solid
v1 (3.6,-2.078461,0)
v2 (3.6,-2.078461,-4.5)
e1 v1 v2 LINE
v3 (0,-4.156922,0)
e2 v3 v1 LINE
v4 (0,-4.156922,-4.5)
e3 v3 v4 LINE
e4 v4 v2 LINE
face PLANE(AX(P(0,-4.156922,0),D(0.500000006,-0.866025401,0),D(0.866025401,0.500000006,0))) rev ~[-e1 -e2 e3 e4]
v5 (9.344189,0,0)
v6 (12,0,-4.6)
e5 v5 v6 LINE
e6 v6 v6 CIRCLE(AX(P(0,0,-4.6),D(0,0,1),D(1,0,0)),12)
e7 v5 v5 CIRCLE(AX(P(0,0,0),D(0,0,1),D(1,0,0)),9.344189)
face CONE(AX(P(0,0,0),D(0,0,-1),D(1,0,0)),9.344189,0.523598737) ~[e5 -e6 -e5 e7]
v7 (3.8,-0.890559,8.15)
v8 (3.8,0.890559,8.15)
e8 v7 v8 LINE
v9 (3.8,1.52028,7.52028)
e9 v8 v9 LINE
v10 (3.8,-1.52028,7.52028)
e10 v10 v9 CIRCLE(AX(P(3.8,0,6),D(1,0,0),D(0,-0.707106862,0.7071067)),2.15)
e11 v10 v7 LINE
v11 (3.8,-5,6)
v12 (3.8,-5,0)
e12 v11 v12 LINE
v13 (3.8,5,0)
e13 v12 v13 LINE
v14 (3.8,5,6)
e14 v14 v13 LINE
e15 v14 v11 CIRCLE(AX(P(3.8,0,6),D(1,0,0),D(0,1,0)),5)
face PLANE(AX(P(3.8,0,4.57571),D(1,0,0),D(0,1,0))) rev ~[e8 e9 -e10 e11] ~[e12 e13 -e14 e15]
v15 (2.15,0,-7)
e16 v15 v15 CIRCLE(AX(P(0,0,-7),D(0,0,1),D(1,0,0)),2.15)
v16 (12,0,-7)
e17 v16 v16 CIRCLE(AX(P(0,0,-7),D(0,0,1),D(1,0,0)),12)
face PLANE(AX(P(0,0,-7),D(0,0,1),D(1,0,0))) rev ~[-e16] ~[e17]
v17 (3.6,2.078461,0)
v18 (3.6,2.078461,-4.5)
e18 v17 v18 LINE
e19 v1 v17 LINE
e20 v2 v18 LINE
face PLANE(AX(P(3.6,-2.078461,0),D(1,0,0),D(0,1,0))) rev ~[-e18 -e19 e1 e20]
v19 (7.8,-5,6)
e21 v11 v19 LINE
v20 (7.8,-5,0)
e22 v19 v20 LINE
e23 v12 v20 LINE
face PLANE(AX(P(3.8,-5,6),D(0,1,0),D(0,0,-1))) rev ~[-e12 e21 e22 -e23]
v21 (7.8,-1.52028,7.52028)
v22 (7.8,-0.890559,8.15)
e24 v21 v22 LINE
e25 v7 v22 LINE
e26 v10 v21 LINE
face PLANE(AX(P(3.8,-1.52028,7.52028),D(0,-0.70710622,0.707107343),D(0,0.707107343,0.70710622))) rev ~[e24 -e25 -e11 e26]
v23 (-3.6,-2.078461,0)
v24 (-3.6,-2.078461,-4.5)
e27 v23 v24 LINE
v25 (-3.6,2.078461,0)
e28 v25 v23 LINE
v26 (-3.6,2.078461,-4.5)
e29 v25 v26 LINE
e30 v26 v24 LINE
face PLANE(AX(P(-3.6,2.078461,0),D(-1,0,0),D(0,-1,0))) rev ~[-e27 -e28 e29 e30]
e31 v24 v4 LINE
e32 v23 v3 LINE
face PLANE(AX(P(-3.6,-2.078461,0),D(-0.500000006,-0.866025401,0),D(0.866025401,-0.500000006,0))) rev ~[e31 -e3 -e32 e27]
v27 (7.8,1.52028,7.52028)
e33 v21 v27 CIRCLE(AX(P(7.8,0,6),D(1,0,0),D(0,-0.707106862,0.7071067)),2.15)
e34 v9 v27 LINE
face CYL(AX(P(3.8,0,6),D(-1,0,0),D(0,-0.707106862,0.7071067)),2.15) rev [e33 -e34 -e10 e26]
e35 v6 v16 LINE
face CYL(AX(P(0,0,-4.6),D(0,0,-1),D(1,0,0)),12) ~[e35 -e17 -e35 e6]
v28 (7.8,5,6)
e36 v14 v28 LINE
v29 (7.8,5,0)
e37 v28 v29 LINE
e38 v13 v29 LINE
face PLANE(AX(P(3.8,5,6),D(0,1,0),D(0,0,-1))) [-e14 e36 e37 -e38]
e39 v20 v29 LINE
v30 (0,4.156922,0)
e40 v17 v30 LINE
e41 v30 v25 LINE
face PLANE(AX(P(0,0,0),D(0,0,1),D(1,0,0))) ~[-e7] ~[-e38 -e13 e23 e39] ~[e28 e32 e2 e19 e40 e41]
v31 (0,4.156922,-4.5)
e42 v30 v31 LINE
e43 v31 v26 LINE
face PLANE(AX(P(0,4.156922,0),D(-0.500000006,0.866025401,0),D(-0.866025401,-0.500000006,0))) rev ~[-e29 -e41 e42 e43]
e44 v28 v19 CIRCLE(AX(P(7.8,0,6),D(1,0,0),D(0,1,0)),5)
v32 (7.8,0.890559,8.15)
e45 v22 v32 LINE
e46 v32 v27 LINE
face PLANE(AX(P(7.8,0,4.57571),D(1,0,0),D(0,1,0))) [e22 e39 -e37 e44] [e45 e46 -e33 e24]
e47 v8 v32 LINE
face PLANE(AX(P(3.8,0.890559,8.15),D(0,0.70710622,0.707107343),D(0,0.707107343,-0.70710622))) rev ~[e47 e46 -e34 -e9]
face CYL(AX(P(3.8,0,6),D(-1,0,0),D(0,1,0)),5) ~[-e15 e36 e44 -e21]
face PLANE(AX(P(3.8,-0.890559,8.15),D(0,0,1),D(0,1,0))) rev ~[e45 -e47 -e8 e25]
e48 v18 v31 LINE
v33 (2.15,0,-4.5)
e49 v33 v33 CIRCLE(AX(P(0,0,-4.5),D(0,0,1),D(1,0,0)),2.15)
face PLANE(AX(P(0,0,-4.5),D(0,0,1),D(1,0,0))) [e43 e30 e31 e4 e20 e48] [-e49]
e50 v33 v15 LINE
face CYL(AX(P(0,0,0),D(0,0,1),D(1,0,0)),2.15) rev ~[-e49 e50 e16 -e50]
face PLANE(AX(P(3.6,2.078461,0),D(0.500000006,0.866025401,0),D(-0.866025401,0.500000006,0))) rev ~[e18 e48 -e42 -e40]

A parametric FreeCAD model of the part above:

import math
import FreeCAD as App
import Part
import Sketcher
Q = App.Units.Quantity

doc = App.newDocument("Part")
body = doc.addObject("PartDesign::Body", "Body")

# Sketch on XZ plane
sketch1 = doc.addObject("Sketcher::SketchObject", "Sketch")
body.addObject(sketch1)
sketch1.AttachmentSupport = (doc.XZ_Plane, [""])
sketch1.MapMode = "FlatFace"
sketch1.addGeometry(Part.LineSegment(App.Vector(9.344189, 0, 0), App.Vector(0, 0, 0)), False)
sketch1.addGeometry(Part.LineSegment(App.Vector(0, 0, 0), App.Vector(0, -7, 0)), False)
sketch1.addGeometry(Part.LineSegment(App.Vector(0, -7, 0), App.Vector(12, -7, 0)), False)
sketch1.addGeometry(Part.LineSegment(App.Vector(12, -7, 0), App.Vector(12, -4.6, 0)), False)
sketch1.addGeometry(Part.LineSegment(App.Vector(12, -4.6, 0), App.Vector(9.344189, 0, 0)), False)
sketch1.addConstraint(Sketcher.Constraint("Coincident", 0, 2, 1, 1))
sketch1.addConstraint(Sketcher.Constraint("Coincident", 1, 2, 2, 1))
sketch1.addConstraint(Sketcher.Constraint("Coincident", 2, 2, 3, 1))
sketch1.addConstraint(Sketcher.Constraint("Coincident", 3, 2, 4, 1))
sketch1.addConstraint(Sketcher.Constraint("Coincident", 4, 2, 0, 1))
sketch1.addConstraint(Sketcher.Constraint("Horizontal", 0))
sketch1.addConstraint(Sketcher.Constraint("Vertical", 1))
sketch1.addConstraint(Sketcher.Constraint("Horizontal", 2))
sketch1.addConstraint(Sketcher.Constraint("Vertical", 3))
sketch1.addConstraint(Sketcher.Constraint("Coincident", 0, 2, -1, 1))
sketch1.addConstraint(Sketcher.Constraint("DistanceX", 2, 1, 2, 2, Q("12 mm")))
sketch1.addConstraint(Sketcher.Constraint("DistanceY", 1, 2, 1, 1, Q("7 mm")))
sketch1.addConstraint(Sketcher.Constraint("Angle", 4, Q("119.999998 deg")))
sketch1.addConstraint(Sketcher.Constraint("DistanceY", 3, 1, 3, 2, Q("2.4 mm")))
revolution = doc.addObject("PartDesign::Revolution", "Revolution")
body.addObject(revolution)
revolution.Profile = sketch1
revolution.ReferenceAxis = (sketch1, ["V_Axis"])
revolution.Angle = 360

# Sketch on YZ plane
sketch2 = doc.addObject("Sketcher::SketchObject", "Sketch001")
body.addObject(sketch2)
sketch2.AttachmentSupport = (doc.YZ_Plane, [""])
sketch2.MapMode = "FlatFace"
sketch2.AttachmentOffset = App.Placement(App.Vector(0, 0, 3.8), App.Rotation())
sketch2.addGeometry(Part.ArcOfCircle(Part.Circle(App.Vector(0, 6, 0), App.Vector(0, 0, 1), 5), math.radians(0), math.radians(180)), False)
sketch2.addGeometry(Part.LineSegment(App.Vector(-5, 6, 0), App.Vector(-5, 0, 0)), False)
sketch2.addGeometry(Part.LineSegment(App.Vector(-5, 0, 0), App.Vector(5, 0, 0)), False)
sketch2.addGeometry(Part.LineSegment(App.Vector(5, 0, 0), App.Vector(5, 6, 0)), False)
sketch2.addGeometry(Part.ArcOfCircle(Part.Circle(App.Vector(0, 6, 0), App.Vector(0, 0, 1), 2.15), math.radians(135.000007), math.radians(404.999993)), False)
sketch2.addGeometry(Part.LineSegment(App.Vector(-1.52028, 7.52028, 0), App.Vector(-0.890559, 8.15, 0)), False)
sketch2.addGeometry(Part.LineSegment(App.Vector(-0.890559, 8.15, 0), App.Vector(0.890559, 8.15, 0)), False)
sketch2.addGeometry(Part.LineSegment(App.Vector(0.890559, 8.15, 0), App.Vector(1.52028, 7.52028, 0)), False)
sketch2.addConstraint(Sketcher.Constraint("Tangent", 0, 2, 1, 1))
sketch2.addConstraint(Sketcher.Constraint("Coincident", 1, 2, 2, 1))
sketch2.addConstraint(Sketcher.Constraint("Coincident", 2, 2, 3, 1))
sketch2.addConstraint(Sketcher.Constraint("Tangent", 3, 2, 0, 1))
sketch2.addConstraint(Sketcher.Constraint("Tangent", 4, 1, 5, 1))
sketch2.addConstraint(Sketcher.Constraint("Coincident", 5, 2, 6, 1))
sketch2.addConstraint(Sketcher.Constraint("Coincident", 6, 2, 7, 1))
sketch2.addConstraint(Sketcher.Constraint("Tangent", 7, 2, 4, 2))
sketch2.addConstraint(Sketcher.Constraint("Vertical", 1))
sketch2.addConstraint(Sketcher.Constraint("Horizontal", 2))
sketch2.addConstraint(Sketcher.Constraint("Vertical", 3))
sketch2.addConstraint(Sketcher.Constraint("Horizontal", 6))
sketch2.addConstraint(Sketcher.Constraint("Coincident", 4, 3, 0, 3))
sketch2.addConstraint(Sketcher.Constraint("Symmetric", 1, 2, 2, 2, -1, 1))
sketch2.addConstraint(Sketcher.Constraint("Perpendicular", 5, 7))
sketch2.addConstraint(Sketcher.Constraint("Horizontal", 4, 1, 7, 2))
sketch2.addConstraint(Sketcher.Constraint("Radius", 0, Q("5 mm")))
sketch2.addConstraint(Sketcher.Constraint("DistanceY", 1, 2, 1, 1, Q("6 mm")))
sketch2.addConstraint(Sketcher.Constraint("Radius", 4, Q("2.15 mm")))
sketch2.addConstraint(Sketcher.Constraint("DistanceY", -1, 1, 5, 2, Q("8.15 mm")))
pad1 = doc.addObject("PartDesign::Pad", "Pad")
body.addObject(pad1)
pad1.Profile = sketch2
pad1.Length = 4

# Sketch on XY plane
sketch3 = doc.addObject("Sketcher::SketchObject", "Sketch002")
body.addObject(sketch3)
sketch3.AttachmentSupport = (doc.XY_Plane, [""])
sketch3.MapMode = "FlatFace"
sketch3.addGeometry(Part.LineSegment(App.Vector(3.6, 2.078461, 0), App.Vector(0, 4.156922, 0)), False)
sketch3.addGeometry(Part.LineSegment(App.Vector(0, 4.156922, 0), App.Vector(-3.6, 2.078461, 0)), False)
sketch3.addGeometry(Part.LineSegment(App.Vector(-3.6, 2.078461, 0), App.Vector(-3.6, -2.078461, 0)), False)
sketch3.addGeometry(Part.LineSegment(App.Vector(-3.6, -2.078461, 0), App.Vector(0, -4.156922, 0)), False)
sketch3.addGeometry(Part.LineSegment(App.Vector(0, -4.156922, 0), App.Vector(3.6, -2.078461, 0)), False)
sketch3.addGeometry(Part.LineSegment(App.Vector(3.6, -2.078461, 0), App.Vector(3.6, 2.078461, 0)), False)
sketch3.addConstraint(Sketcher.Constraint("Coincident", 0, 2, 1, 1))
sketch3.addConstraint(Sketcher.Constraint("Coincident", 1, 2, 2, 1))
sketch3.addConstraint(Sketcher.Constraint("Coincident", 2, 2, 3, 1))
sketch3.addConstraint(Sketcher.Constraint("Coincident", 3, 2, 4, 1))
sketch3.addConstraint(Sketcher.Constraint("Coincident", 4, 2, 5, 1))
sketch3.addConstraint(Sketcher.Constraint("Coincident", 5, 2, 0, 1))
sketch3.addConstraint(Sketcher.Constraint("Vertical", 2))
sketch3.addConstraint(Sketcher.Constraint("Vertical", 5))
sketch3.addConstraint(Sketcher.Constraint("Symmetric", 0, 2, 3, 2, -1, 1))
sketch3.addConstraint(Sketcher.Constraint("Symmetric", 1, 2, 4, 2, -1, 1))
sketch3.addConstraint(Sketcher.Constraint("PointOnObject", 0, 2, -2))
sketch3.addConstraint(Sketcher.Constraint("Parallel", 0, 3))
sketch3.addConstraint(Sketcher.Constraint("Horizontal", 2, 2, 4, 2))
sketch3.addConstraint(Sketcher.Constraint("Angle", 0, Q("150 deg")))
sketch3.addConstraint(Sketcher.Constraint("DistanceX", 1, 2, -1, 1, Q("3.6 mm")))
sketch3.addConstraint(Sketcher.Constraint("DistanceY", 2, 2, 2, 1, Q("4.156922 mm")))
pocket1 = doc.addObject("PartDesign::Pocket", "Pocket")
body.addObject(pocket1)
pocket1.Profile = sketch3
pocket1.Length = 4.5

# Sketch on XY plane
sketch4 = doc.addObject("Sketcher::SketchObject", "Sketch003")
body.addObject(sketch4)
sketch4.AttachmentSupport = (doc.XY_Plane, [""])
sketch4.MapMode = "FlatFace"
sketch4.addGeometry(Part.Circle(App.Vector(0, 0, 0), App.Vector(0, 0, 1), 2.15), False)
sketch4.addConstraint(Sketcher.Constraint("Coincident", 0, 3, -1, 1))
sketch4.addConstraint(Sketcher.Constraint("Diameter", 0, Q("4.3 mm")))
pocket2 = doc.addObject("PartDesign::Pocket", "Pocket001")
body.addObject(pocket2)
pocket2.Profile = sketch4
pocket2.Type = "ThroughAll"

doc.recompute()
